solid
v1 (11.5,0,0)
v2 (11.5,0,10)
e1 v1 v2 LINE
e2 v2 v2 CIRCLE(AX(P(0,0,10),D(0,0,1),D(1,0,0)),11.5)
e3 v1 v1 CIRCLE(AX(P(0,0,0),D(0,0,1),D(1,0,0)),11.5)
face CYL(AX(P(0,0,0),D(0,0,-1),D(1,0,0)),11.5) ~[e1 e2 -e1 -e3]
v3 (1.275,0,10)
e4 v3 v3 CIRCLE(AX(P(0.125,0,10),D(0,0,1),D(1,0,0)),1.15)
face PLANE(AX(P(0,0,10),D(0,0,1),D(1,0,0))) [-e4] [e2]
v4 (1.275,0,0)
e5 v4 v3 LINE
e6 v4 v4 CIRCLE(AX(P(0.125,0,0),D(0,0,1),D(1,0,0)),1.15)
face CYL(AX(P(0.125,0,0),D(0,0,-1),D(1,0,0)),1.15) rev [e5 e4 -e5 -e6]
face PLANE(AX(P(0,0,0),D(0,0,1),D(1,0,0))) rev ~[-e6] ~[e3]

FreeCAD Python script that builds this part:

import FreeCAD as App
import Part
import Sketcher

doc = App.newDocument("Part")
body = doc.addObject("PartDesign::Body", "Body")

sketch1 = body.newObject("Sketcher::SketchObject", "Sketch")
sketch1.AttachmentSupport = (doc.getObject("XY_Plane"), [""])
sketch1.MapMode = "FlatFace"
sketch1.addGeometry([
    Part.Circle(App.Vector(0, 0, 0), App.Vector(0, 0, 1), 11.5),
    Part.Circle(App.Vector(0.1, 0, 0), App.Vector(0, 0, 1), 1.1),
], False)
sketch1.addConstraint([
    Sketcher.Constraint("Coincident", 0, 3, -1, 1),
    Sketcher.Constraint("PointOnObject", 1, 3, -1),
    Sketcher.Constraint("Diameter", 0, 23.0),
    Sketcher.Constraint("Diameter", 1, 2.3),
    Sketcher.Constraint("DistanceX", -1, 1, 1, 3, 0.125),
])
pad1 = body.newObject("PartDesign::Pad", "Pad")
pad1.Profile = sketch1
pad1.Length = 10

doc.recompute()
